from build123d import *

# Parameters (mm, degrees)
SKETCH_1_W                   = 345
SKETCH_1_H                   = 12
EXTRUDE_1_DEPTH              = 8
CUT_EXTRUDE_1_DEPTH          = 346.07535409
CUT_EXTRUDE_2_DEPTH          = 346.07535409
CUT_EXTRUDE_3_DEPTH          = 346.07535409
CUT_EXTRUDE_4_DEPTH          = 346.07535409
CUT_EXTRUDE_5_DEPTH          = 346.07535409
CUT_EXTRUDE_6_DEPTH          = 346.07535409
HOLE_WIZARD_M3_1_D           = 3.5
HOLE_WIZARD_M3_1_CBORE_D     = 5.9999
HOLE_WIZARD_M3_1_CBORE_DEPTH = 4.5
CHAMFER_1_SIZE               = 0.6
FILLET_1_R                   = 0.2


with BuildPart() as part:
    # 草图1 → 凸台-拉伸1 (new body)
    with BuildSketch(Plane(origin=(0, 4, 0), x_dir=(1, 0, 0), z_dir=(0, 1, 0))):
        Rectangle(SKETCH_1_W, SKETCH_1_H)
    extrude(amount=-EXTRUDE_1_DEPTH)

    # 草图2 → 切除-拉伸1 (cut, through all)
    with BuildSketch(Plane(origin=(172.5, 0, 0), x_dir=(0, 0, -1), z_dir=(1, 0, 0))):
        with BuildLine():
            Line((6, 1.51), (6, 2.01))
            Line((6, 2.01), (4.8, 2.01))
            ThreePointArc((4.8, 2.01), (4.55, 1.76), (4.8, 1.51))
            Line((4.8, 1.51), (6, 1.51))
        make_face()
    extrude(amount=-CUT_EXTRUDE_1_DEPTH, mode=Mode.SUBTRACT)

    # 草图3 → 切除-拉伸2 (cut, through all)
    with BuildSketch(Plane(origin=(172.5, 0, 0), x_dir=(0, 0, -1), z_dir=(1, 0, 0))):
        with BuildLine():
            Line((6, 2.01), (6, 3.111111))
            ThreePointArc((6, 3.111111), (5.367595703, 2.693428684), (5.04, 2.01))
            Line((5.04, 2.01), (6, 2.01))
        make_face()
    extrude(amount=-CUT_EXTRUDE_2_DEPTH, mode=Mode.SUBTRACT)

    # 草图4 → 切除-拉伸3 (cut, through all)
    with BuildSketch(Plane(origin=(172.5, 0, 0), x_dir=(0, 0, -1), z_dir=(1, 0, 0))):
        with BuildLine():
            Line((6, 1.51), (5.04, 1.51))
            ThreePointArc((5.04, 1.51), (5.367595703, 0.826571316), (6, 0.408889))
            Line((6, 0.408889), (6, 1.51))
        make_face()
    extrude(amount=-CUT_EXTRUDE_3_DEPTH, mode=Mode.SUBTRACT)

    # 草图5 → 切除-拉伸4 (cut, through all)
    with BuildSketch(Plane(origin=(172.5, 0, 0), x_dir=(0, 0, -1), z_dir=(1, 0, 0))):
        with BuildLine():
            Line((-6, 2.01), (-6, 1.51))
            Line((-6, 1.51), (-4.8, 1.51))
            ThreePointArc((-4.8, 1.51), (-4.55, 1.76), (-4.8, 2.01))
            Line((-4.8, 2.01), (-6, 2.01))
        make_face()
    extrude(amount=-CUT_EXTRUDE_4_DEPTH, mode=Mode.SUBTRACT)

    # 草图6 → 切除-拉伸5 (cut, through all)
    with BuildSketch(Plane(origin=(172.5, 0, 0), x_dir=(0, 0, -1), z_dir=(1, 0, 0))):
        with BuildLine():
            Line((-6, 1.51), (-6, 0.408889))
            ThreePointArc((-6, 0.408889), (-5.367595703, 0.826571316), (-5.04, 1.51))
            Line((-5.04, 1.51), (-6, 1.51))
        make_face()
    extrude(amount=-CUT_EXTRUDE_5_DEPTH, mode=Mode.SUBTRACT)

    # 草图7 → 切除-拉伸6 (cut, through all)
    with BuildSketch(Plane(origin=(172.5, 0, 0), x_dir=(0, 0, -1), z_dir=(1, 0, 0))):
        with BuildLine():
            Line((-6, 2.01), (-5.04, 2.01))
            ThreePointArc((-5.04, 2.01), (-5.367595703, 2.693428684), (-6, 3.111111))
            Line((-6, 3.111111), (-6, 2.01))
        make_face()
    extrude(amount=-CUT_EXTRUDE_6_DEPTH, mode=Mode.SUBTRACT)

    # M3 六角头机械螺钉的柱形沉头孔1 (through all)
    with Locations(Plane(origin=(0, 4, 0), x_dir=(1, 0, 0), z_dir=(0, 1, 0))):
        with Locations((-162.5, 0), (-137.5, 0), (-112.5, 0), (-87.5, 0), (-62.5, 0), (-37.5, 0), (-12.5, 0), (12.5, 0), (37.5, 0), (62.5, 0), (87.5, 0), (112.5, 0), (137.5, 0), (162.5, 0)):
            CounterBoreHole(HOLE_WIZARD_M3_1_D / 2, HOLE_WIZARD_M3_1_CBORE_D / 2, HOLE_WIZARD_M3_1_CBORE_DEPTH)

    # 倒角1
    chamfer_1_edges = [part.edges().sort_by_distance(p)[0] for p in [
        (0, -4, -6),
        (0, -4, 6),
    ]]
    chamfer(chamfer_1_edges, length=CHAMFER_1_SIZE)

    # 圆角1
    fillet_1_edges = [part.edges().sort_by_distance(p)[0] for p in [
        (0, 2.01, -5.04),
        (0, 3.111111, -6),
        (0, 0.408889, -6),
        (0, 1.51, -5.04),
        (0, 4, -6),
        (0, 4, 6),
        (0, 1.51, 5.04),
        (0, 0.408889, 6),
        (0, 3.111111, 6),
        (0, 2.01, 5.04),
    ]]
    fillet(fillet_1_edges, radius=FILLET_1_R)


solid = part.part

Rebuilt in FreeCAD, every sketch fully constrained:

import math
import FreeCAD as App
import Part
import Sketcher
Q = App.Units.Quantity


def edges_at(feature, points):
    """Names of the edges that pass closest to the given points."""
    edges = feature.Shape.Edges
    near = lambda p: min(range(len(edges)), key=lambda i: edges[i].distToShape(Part.Vertex(*p))[0])
    return sorted({f"Edge{near(p) + 1}" for p in points})

doc = App.newDocument("Part")
body = doc.addObject("PartDesign::Body", "Body")

# Sketch on XZ plane
sketch1 = body.newObject("Sketcher::SketchObject", "Sketch")
sketch1.AttachmentSupport = (doc.getObject("XZ_Plane"), [""])
sketch1.MapMode = "FlatFace"
sketch1.AttachmentOffset = App.Placement(App.Vector(0, 0, -4), App.Rotation())
sketch1.addGeometry([
    Part.LineSegment(App.Vector(-172, -6, 0), App.Vector(-172, 6, 0)),
    Part.LineSegment(App.Vector(-172, 6, 0), App.Vector(172, 6, 0)),
    Part.LineSegment(App.Vector(172, 6, 0), App.Vector(172, -6, 0)),
    Part.LineSegment(App.Vector(172, -6, 0), App.Vector(-172, -6, 0)),
], False)
sketch1.addConstraint([
    Sketcher.Constraint("Coincident", 0, 2, 1, 1),
    Sketcher.Constraint("Coincident", 1, 2, 2, 1),
    Sketcher.Constraint("Coincident", 2, 2, 3, 1),
    Sketcher.Constraint("Coincident", 3, 2, 0, 1),
    Sketcher.Constraint("Vertical", 0),
    Sketcher.Constraint("Horizontal", 1),
    Sketcher.Constraint("Vertical", 2),
    Sketcher.Constraint("Horizontal", 3),
    Sketcher.Constraint("Symmetric", 0, 2, 2, 2, -1, 1),
    Sketcher.Constraint("DistanceX", 1, 1, 1, 2, Q("345 mm")),
    Sketcher.Constraint("DistanceY", 0, 1, 0, 2, Q("12 mm")),
])
pad1 = body.newObject("PartDesign::Pad", "Pad")
pad1.Profile = sketch1
pad1.Length = 8

# Sketch on YZ plane
sketch2 = body.newObject("Sketcher::SketchObject", "Sketch001")
sketch2.AttachmentSupport = (doc.getObject("YZ_Plane"), [""])
sketch2.MapMode = "FlatFace"
sketch2.AttachmentOffset = App.Placement(App.Vector(0, 0, 172.5), App.Rotation())
sketch2.addGeometry([
    Part.LineSegment(App.Vector(1.51, -6, 0), App.Vector(2.01, -6, 0)),
    Part.LineSegment(App.Vector(2.01, -6, 0), App.Vector(2.01, -4.8, 0)),
    Part.ArcOfCircle(Part.Circle(App.Vector(1.76, -4.8, 0), App.Vector(0, 0, 1), 0.25), math.radians(0), math.radians(180)),
    Part.LineSegment(App.Vector(1.51, -4.8, 0), App.Vector(1.51, -6, 0)),
], False)
sketch2.addConstraint([
    Sketcher.Constraint("Coincident", 0, 2, 1, 1),
    Sketcher.Constraint("Tangent", 1, 2, 2, 1),
    Sketcher.Constraint("Tangent", 2, 2, 3, 1),
    Sketcher.Constraint("Coincident", 3, 2, 0, 1),
    Sketcher.Constraint("Horizontal", 0),
    Sketcher.Constraint("Vertical", 1),
    Sketcher.Constraint("Vertical", 3),
    Sketcher.Constraint("Radius", 2, Q("0.25 mm")),
    Sketcher.Constraint("DistanceY", 1, 1, 1, 2, Q("1.2 mm")),
    Sketcher.Constraint("DistanceY", 0, 2, -1, 1, Q("6 mm")),
    Sketcher.Constraint("DistanceX", -1, 1, 2, 3, Q("1.76 mm")),
])
pocket1 = body.newObject("PartDesign::Pocket", "Pocket")
pocket1.Profile = sketch2
pocket1.Type = "ThroughAll"

# Sketch on YZ plane
sketch3 = body.newObject("Sketcher::SketchObject", "Sketch002")
sketch3.AttachmentSupport = (doc.getObject("YZ_Plane"), [""])
sketch3.MapMode = "FlatFace"
sketch3.AttachmentOffset = App.Placement(App.Vector(0, 0, 172.5), App.Rotation())
sketch3.addGeometry([
    Part.LineSegment(App.Vector(2, -6, 0), App.Vector(3.1, -6, 0)),
    Part.ArcOfCircle(Part.Circle(App.Vector(1.8, -6.4, 0), App.Vector(0, 0, 1), 1.4), math.radians(18), math.radians(80)),
    Part.LineSegment(App.Vector(2, -5, 0), App.Vector(2, -6, 0)),
], False)
sketch3.addConstraint([
    Sketcher.Constraint("Coincident", 0, 2, 1, 1),
    Sketcher.Constraint("Coincident", 1, 2, 2, 1),
    Sketcher.Constraint("Coincident", 2, 2, 0, 1),
    Sketcher.Constraint("Horizontal", 0),
    Sketcher.Constraint("Vertical", 2),
    Sketcher.Constraint("DistanceY", 0, 2, -1, 1, Q("6 mm")),
    Sketcher.Constraint("DistanceY", 2, 2, 2, 1, Q("0.96 mm")),
    Sketcher.Constraint("DistanceX", -1, 1, 1, 3, Q("1.76 mm")),
    Sketcher.Constraint("DistanceX", -1, 1, 1, 2, Q("2.01 mm")),
    Sketcher.Constraint("Radius", 1, Q("1.420404 mm")),
])
pocket2 = body.newObject("PartDesign::Pocket", "Pocket001")
pocket2.Profile = sketch3
pocket2.Type = "ThroughAll"

# Sketch on YZ plane
sketch4 = body.newObject("Sketcher::SketchObject", "Sketch003")
sketch4.AttachmentSupport = (doc.getObject("YZ_Plane"), [""])
sketch4.MapMode = "FlatFace"
sketch4.AttachmentOffset = App.Placement(App.Vector(0, 0, 172.5), App.Rotation())
sketch4.addGeometry([
    Part.LineSegment(App.Vector(1.5, -6, 0), App.Vector(1.5, -5, 0)),
    Part.ArcOfCircle(Part.Circle(App.Vector(1.8, -6.4, 0), App.Vector(0, 0, 1), 1.4), math.radians(100), math.radians(162)),
    Part.LineSegment(App.Vector(0.4, -6, 0), App.Vector(1.5, -6, 0)),
], False)
sketch4.addConstraint([
    Sketcher.Constraint("Coincident", 0, 2, 1, 1),
    Sketcher.Constraint("Coincident", 1, 2, 2, 1),
    Sketcher.Constraint("Coincident", 2, 2, 0, 1),
    Sketcher.Constraint("Vertical", 0),
    Sketcher.Constraint("Horizontal", 2),
    Sketcher.Constraint("DistanceY", 1, 2, -1, 1, Q("6 mm")),
    Sketcher.Constraint("DistanceY", 0, 1, 0, 2, Q("0.96 mm")),
    Sketcher.Constraint("DistanceX", -1, 1, 1, 3, Q("1.76 mm")),
    Sketcher.Constraint("DistanceX", -1, 1, 0, 2, Q("1.51 mm")),
    Sketcher.Constraint("Radius", 1, Q("1.420404 mm")),
])
pocket3 = body.newObject("PartDesign::Pocket", "Pocket002")
pocket3.Profile = sketch4
pocket3.Type = "ThroughAll"

# Sketch on YZ plane
sketch5 = body.newObject("Sketcher::SketchObject", "Sketch004")
sketch5.AttachmentSupport = (doc.getObject("YZ_Plane"), [""])
sketch5.MapMode = "FlatFace"
sketch5.AttachmentOffset = App.Placement(App.Vector(0, 0, 172.5), App.Rotation())
sketch5.addGeometry([
    Part.LineSegment(App.Vector(2.01, 6, 0), App.Vector(1.51, 6, 0)),
    Part.LineSegment(App.Vector(1.51, 6, 0), App.Vector(1.51, 4.8, 0)),
    Part.ArcOfCircle(Part.Circle(App.Vector(1.76, 4.8, 0), App.Vector(0, 0, 1), 0.25), math.radians(180), math.radians(360)),
    Part.LineSegment(App.Vector(2.01, 4.8, 0), App.Vector(2.01, 6, 0)),
], False)
sketch5.addConstraint([
    Sketcher.Constraint("Coincident", 0, 2, 1, 1),
    Sketcher.Constraint("Tangent", 1, 2, 2, 1),
    Sketcher.Constraint("Tangent", 2, 2, 3, 1),
    Sketcher.Constraint("Coincident", 3, 2, 0, 1),
    Sketcher.Constraint("Horizontal", 0),
    Sketcher.Constraint("Vertical", 1),
    Sketcher.Constraint("Vertical", 3),
    Sketcher.Constraint("Radius", 2, Q("0.25 mm")),
    Sketcher.Constraint("DistanceY", 1, 2, 1, 1, Q("1.2 mm")),
    Sketcher.Constraint("DistanceY", -1, 1, 0, 2, Q("6 mm")),
    Sketcher.Constraint("DistanceX", -1, 1, 2, 3, Q("1.76 mm")),
])
pocket4 = body.newObject("PartDesign::Pocket", "Pocket003")
pocket4.Profile = sketch5
pocket4.Type = "ThroughAll"

# Sketch on YZ plane
sketch6 = body.newObject("Sketcher::SketchObject", "Sketch005")
sketch6.AttachmentSupport = (doc.getObject("YZ_Plane"), [""])
sketch6.MapMode = "FlatFace"
sketch6.AttachmentOffset = App.Placement(App.Vector(0, 0, 172.5), App.Rotation())
sketch6.addGeometry([
    Part.LineSegment(App.Vector(1.5, 6, 0), App.Vector(0.4, 6, 0)),
    Part.ArcOfCircle(Part.Circle(App.Vector(1.8, 6.4, 0), App.Vector(0, 0, 1), 1.4), math.radians(-162), math.radians(-100)),
    Part.LineSegment(App.Vector(1.5, 5, 0), App.Vector(1.5, 6, 0)),
], False)
sketch6.addConstraint([
    Sketcher.Constraint("Coincident", 0, 2, 1, 1),
    Sketcher.Constraint("Coincident", 1, 2, 2, 1),
    Sketcher.Constraint("Coincident", 2, 2, 0, 1),
    Sketcher.Constraint("Horizontal", 0),
    Sketcher.Constraint("Vertical", 2),
    Sketcher.Constraint("DistanceY", -1, 1, 0, 2, Q("6 mm")),
    Sketcher.Constraint("DistanceY", 2, 1, 2, 2, Q("0.96 mm")),
    Sketcher.Constraint("DistanceX", -1, 1, 1, 3, Q("1.76 mm")),
    Sketcher.Constraint("DistanceX", -1, 1, 1, 2, Q("1.51 mm")),
    Sketcher.Constraint("Radius", 1, Q("1.420404 mm")),
])
pocket5 = body.newObject("PartDesign::Pocket", "Pocket004")
pocket5.Profile = sketch6
pocket5.Type = "ThroughAll"

# Sketch on YZ plane
sketch7 = body.newObject("Sketcher::SketchObject", "Sketch006")
sketch7.AttachmentSupport = (doc.getObject("YZ_Plane"), [""])
sketch7.MapMode = "FlatFace"
sketch7.AttachmentOffset = App.Placement(App.Vector(0, 0, 172.5), App.Rotation())
sketch7.addGeometry([
    Part.LineSegment(App.Vector(2, 6, 0), App.Vector(2, 5, 0)),
    Part.ArcOfCircle(Part.Circle(App.Vector(1.8, 6.4, 0), App.Vector(0, 0, 1), 1.4), math.radians(-80), math.radians(-18)),
    Part.LineSegment(App.Vector(3.1, 6, 0), App.Vector(2, 6, 0)),
], False)
sketch7.addConstraint([
    Sketcher.Constraint("Coincident", 0, 2, 1, 1),
    Sketcher.Constraint("Coincident", 1, 2, 2, 1),
    Sketcher.Constraint("Coincident", 2, 2, 0, 1),
    Sketcher.Constraint("Vertical", 0),
    Sketcher.Constraint("Horizontal", 2),
    Sketcher.Constraint("DistanceY", -1, 1, 1, 2, Q("6 mm")),
    Sketcher.Constraint("DistanceY", 0, 2, 0, 1, Q("0.96 mm")),
    Sketcher.Constraint("DistanceX", -1, 1, 1, 3, Q("1.76 mm")),
    Sketcher.Constraint("DistanceX", -1, 1, 0, 2, Q("2.01 mm")),
    Sketcher.Constraint("Radius", 1, Q("1.420404 mm")),
])
pocket6 = body.newObject("PartDesign::Pocket", "Pocket005")
pocket6.Profile = sketch7
pocket6.Type = "ThroughAll"

# Sketch on XZ plane
sketch8 = body.newObject("Sketcher::SketchObject", "Sketch007")
sketch8.AttachmentSupport = (doc.getObject("XZ_Plane"), [""])
sketch8.MapMode = "FlatFace"
sketch8.AttachmentOffset = App.Placement(App.Vector(0, 0, -4), App.Rotation())
sketch8.addGeometry([
    Part.Circle(App.Vector(-162.5, 0, 0), App.Vector(0, 0, 1), 1.8),  # 0
    Part.Circle(App.Vector(-137.5, 0, 0), App.Vector(0, 0, 1), 1.8),  # 1
    Part.Circle(App.Vector(-112.5, 0, 0), App.Vector(0, 0, 1), 1.8),  # 2
    Part.Circle(App.Vector(-87.5, 0, 0), App.Vector(0, 0, 1), 1.8),  # 3
    Part.Circle(App.Vector(-62.5, 0, 0), App.Vector(0, 0, 1), 1.8),  # 4
    Part.Circle(App.Vector(-37.5, 0, 0), App.Vector(0, 0, 1), 1.8),  # 5
    Part.Circle(App.Vector(-12.5, 0, 0), App.Vector(0, 0, 1), 1.8),  # 6
    Part.Circle(App.Vector(12.5, 0, 0), App.Vector(0, 0, 1), 1.8),  # 7
    Part.Circle(App.Vector(37.5, 0, 0), App.Vector(0, 0, 1), 1.8),  # 8
    Part.Circle(App.Vector(62.5, 0, 0), App.Vector(0, 0, 1), 1.8),  # 9
    Part.Circle(App.Vector(87.5, 0, 0), App.Vector(0, 0, 1), 1.8),  # 10
    Part.Circle(App.Vector(112.5, 0, 0), App.Vector(0, 0, 1), 1.8),  # 11
    Part.Circle(App.Vector(137.5, 0, 0), App.Vector(0, 0, 1), 1.8),  # 12
    Part.Circle(App.Vector(162.5, 0, 0), App.Vector(0, 0, 1), 1.8),  # 13
], False)
sketch8.addConstraint([
    Sketcher.Constraint("Equal", 0, 1),
    Sketcher.Constraint("Equal", 1, 2),
    Sketcher.Constraint("Equal", 2, 3),
    Sketcher.Constraint("Equal", 3, 4),
    Sketcher.Constraint("Equal", 4, 5),
    Sketcher.Constraint("Equal", 5, 6),
    Sketcher.Constraint("Equal", 6, 7),
    Sketcher.Constraint("Equal", 7, 8),
    Sketcher.Constraint("Equal", 8, 9),
    Sketcher.Constraint("Equal", 9, 10),
    Sketcher.Constraint("Equal", 10, 11),
    Sketcher.Constraint("Equal", 11, 12),
    Sketcher.Constraint("Equal", 12, 13),
    Sketcher.Constraint("Symmetric", 6, 3, 7, 3, -1, 1),
    Sketcher.Constraint("Symmetric", 5, 3, 8, 3, -1, 1),
    Sketcher.Constraint("Symmetric", 4, 3, 9, 3, -1, 1),
    Sketcher.Constraint("Symmetric", 3, 3, 10, 3, -1, 1),
    Sketcher.Constraint("Symmetric", 2, 3, 11, 3, -1, 1),
    Sketcher.Constraint("Symmetric", 1, 3, 12, 3, -1, 1),
    Sketcher.Constraint("Symmetric", 0, 3, 13, 3, -1, 1),
    Sketcher.Constraint("PointOnObject", 0, 3, -1),
    Sketcher.Constraint("PointOnObject", 1, 3, -1),
    Sketcher.Constraint("PointOnObject", 2, 3, -1),
    Sketcher.Constraint("PointOnObject", 3, 3, -1),
    Sketcher.Constraint("PointOnObject", 4, 3, -1),
    Sketcher.Constraint("PointOnObject", 5, 3, -1),
    Sketcher.Constraint("PointOnObject", 6, 3, -1),
    Sketcher.Constraint("Diameter", 0, Q("3.5 mm")),
    Sketcher.Constraint("DistanceX", 0, 3, 1, 3, Q("25 mm")),
    Sketcher.Constraint("DistanceX", 1, 3, 2, 3, Q("25 mm")),
    Sketcher.Constraint("DistanceX", 2, 3, 3, 3, Q("25 mm")),
    Sketcher.Constraint("DistanceX", 3, 3, 4, 3, Q("25 mm")),
    Sketcher.Constraint("DistanceX", 4, 3, 5, 3, Q("25 mm")),
    Sketcher.Constraint("DistanceX", 5, 3, 6, 3, Q("25 mm")),
    Sketcher.Constraint("DistanceX", 6, 3, 7, 3, Q("25 mm")),
])
doc.recompute()
hole = body.newObject("PartDesign::Hole", "Hole")
hole.Profile = sketch8
hole.ThreadType = "None"
hole.Diameter = 3.5
hole.DepthType = "ThroughAll"
hole.HoleCutType = "Counterbore"
hole.HoleCutDiameter = 5.9999
hole.HoleCutDepth = 4.5
hole.Reversed = True
doc.recompute()

chamfer = body.newObject("PartDesign::Chamfer", "Chamfer")
chamfer.Base = (hole, edges_at(hole, [(0, -4, -6), (0, -4, 6)]))
chamfer.Size = 0.6
doc.recompute()

fillet = body.newObject("PartDesign::Fillet", "Fillet")
fillet.Base = (chamfer, edges_at(chamfer, [
    (0, 2.01, -5.04),
    (0, 3.111, -6),
    (0, 0.409, -6),
    (0, 1.51, -5.04),
    (0, 4, -6),
    (0, 4, 6),
    (0, 1.51, 5.04),
    (0, 0.409, 6),
    (0, 3.111, 6),
    (0, 2.01, 5.04),
]))
fillet.Radius = 0.2

doc.recompute()
